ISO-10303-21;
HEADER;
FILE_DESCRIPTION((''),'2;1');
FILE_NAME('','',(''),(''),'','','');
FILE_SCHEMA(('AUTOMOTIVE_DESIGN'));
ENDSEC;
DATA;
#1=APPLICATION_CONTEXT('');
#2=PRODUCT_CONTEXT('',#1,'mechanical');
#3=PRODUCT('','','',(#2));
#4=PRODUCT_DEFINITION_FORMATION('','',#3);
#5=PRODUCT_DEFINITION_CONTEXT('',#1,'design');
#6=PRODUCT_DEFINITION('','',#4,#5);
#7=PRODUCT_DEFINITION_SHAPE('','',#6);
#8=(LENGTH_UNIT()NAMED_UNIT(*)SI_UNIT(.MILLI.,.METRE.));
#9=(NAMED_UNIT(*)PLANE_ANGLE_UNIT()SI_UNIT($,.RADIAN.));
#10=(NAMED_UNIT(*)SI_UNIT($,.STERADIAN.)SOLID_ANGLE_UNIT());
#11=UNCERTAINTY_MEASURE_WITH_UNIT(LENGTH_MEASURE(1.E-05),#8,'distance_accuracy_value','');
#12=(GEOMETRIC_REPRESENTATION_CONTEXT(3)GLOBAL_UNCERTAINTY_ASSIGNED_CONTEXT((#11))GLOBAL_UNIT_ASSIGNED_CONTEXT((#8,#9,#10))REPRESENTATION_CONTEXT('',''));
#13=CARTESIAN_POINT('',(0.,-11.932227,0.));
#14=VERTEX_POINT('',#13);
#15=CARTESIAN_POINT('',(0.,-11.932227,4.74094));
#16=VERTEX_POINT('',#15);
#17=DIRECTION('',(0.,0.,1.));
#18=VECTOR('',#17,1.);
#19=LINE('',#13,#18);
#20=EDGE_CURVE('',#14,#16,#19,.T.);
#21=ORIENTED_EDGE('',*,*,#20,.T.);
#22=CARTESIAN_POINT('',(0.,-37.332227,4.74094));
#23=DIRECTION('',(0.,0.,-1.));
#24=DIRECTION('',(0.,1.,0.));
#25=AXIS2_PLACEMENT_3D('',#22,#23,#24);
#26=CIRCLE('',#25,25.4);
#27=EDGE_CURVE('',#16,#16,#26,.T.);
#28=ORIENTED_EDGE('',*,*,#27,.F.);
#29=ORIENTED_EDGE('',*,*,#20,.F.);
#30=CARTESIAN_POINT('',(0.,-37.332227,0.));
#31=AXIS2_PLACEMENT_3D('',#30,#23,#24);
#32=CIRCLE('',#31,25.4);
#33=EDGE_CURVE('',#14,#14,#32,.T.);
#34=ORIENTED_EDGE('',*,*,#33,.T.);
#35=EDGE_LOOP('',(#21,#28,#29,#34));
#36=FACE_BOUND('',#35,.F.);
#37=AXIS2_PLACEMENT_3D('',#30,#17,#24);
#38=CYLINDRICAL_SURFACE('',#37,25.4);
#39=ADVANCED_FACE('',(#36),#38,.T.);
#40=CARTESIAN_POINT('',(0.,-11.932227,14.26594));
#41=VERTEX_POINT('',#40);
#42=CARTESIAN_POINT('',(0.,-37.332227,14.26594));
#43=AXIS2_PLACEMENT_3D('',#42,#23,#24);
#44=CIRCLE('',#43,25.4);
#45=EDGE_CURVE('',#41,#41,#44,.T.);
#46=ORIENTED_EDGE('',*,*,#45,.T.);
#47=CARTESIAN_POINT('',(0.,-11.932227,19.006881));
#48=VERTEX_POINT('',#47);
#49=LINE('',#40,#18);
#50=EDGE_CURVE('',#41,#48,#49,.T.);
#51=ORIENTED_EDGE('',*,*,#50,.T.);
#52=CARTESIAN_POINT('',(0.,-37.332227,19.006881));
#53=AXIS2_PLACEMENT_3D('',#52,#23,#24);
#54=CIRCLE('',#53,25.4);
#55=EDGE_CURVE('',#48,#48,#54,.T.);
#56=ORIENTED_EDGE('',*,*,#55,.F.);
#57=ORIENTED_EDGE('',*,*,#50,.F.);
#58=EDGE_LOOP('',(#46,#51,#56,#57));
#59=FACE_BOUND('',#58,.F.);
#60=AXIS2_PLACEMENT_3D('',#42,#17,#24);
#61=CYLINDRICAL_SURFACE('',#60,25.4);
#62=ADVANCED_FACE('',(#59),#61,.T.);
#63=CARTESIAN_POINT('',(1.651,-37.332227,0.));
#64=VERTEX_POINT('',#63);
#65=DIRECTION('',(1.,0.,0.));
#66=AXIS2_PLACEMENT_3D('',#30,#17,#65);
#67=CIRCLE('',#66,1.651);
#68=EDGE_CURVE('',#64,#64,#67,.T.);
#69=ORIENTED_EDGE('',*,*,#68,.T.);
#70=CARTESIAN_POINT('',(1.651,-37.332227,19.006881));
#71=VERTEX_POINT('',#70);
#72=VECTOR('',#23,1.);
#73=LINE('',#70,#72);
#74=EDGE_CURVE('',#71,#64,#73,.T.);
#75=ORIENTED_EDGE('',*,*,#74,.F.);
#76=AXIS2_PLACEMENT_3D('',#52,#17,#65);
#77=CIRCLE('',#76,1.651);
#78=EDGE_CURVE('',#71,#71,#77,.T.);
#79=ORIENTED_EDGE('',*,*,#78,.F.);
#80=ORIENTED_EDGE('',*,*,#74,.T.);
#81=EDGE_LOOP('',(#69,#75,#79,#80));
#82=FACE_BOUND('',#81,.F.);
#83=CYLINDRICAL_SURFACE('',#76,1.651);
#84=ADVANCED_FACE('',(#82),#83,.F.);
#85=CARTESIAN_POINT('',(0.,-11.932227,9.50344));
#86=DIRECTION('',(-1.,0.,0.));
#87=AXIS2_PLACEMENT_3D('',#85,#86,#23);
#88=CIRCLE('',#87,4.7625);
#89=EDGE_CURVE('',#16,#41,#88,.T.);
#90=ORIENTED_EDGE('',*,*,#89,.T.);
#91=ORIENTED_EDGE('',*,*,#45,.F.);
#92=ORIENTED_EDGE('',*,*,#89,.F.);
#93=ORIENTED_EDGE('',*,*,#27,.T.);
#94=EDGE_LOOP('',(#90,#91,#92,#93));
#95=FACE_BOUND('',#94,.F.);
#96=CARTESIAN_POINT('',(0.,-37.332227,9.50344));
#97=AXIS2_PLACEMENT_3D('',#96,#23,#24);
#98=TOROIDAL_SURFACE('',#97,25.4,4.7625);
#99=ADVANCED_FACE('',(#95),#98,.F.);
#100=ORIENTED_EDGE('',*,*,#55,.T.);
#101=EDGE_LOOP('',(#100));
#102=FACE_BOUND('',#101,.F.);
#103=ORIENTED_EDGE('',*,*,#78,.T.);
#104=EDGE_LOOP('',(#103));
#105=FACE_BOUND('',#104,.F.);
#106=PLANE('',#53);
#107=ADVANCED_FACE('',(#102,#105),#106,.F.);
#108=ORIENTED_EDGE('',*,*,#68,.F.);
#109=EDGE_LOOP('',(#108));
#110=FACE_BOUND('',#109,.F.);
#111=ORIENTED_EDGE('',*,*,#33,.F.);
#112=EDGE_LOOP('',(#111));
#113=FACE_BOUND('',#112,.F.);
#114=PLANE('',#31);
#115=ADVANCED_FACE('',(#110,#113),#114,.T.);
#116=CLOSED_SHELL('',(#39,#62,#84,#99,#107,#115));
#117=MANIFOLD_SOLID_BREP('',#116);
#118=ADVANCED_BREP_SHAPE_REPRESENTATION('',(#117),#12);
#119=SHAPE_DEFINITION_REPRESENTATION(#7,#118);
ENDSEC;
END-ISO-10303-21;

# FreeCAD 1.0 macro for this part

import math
import FreeCAD as App
import Part
import Sketcher
from FreeCAD import Vector
Q = App.Units.Quantity

doc = App.newDocument("Part")
body = doc.addObject("PartDesign::Body", "Body")

sketch1 = body.newObject("Sketcher::SketchObject", "Sketch")
sketch1.AttachmentSupport = (doc.getObject("YZ_Plane"), [""])
sketch1.MapMode = "FlatFace"
sketch1.addGeometry([
    Part.LineSegment(Vector(-11.932227, 19.006881, 0), Vector(-37.332227, 19.006881, 0)),
    Part.LineSegment(Vector(-37.332227, 19.006881, 0), Vector(-37.332227, 0, 0)),
    Part.LineSegment(Vector(-37.332227, 0, 0), Vector(-11.932227, 0, 0)),
    Part.LineSegment(Vector(-11.932227, 0, 0), Vector(-11.932227, 4.74094, 0)),
    Part.ArcOfCircle(Part.Circle(Vector(-11.932227, 9.50344, 0), Vector(0, 0, 1), 4.7625), math.radians(90), math.radians(270)),
    Part.LineSegment(Vector(-11.932227, 14.26594, 0), Vector(-11.932227, 19.006881, 0)),
], False)
sketch1.addGeometry(Part.LineSegment(Vector(-37.332227, 19.006881, 0), Vector(-37.332227, 0, 0)), True)
sketch1.addConstraint([
    Sketcher.Constraint("Coincident", 0, 2, 1, 1),
    Sketcher.Constraint("Coincident", 1, 2, 2, 1),
    Sketcher.Constraint("Coincident", 2, 2, 3, 1),
    Sketcher.Constraint("Coincident", 3, 2, 4, 2),
    Sketcher.Constraint("Coincident", 4, 1, 5, 1),
    Sketcher.Constraint("Coincident", 5, 2, 0, 1),
    Sketcher.Constraint("Horizontal", 0),
    Sketcher.Constraint("Vertical", 1),
    Sketcher.Constraint("Horizontal", 2),
    Sketcher.Constraint("Vertical", 3),
    Sketcher.Constraint("Vertical", 5),
    Sketcher.Constraint("Vertical", 6),
    Sketcher.Constraint("Coincident", 6, 1, 0, 2),
    Sketcher.Constraint("PointOnObject", 1, 2, -1),
    Sketcher.Constraint("PointOnObject", 6, 2, -1),
    Sketcher.Constraint("Vertical", 4, 3, 2, 2),
    Sketcher.Constraint("Vertical", 3, 2, 4, 1),
    Sketcher.Constraint("Equal", 3, 5),
    Sketcher.Constraint("DistanceX", 0, 2, 0, 1, Q("1 in")),
    Sketcher.Constraint("Radius", 4, Q("0.1875 in")),
    Sketcher.Constraint("DistanceY", 1, 2, 1, 1, 19.006881),
    Sketcher.Constraint("DistanceX", 4, 3, -1, 1, 11.932227),
])
revolution = body.newObject("PartDesign::Revolution", "Revolution")
revolution.Profile = sketch1
revolution.ReferenceAxis = (sketch1, ["Axis0"])
revolution.Angle = 360

sketch2 = body.newObject("Sketcher::SketchObject", "Sketch001")
sketch2.AttachmentSupport = (doc.getObject("XY_Plane"), [""])
sketch2.MapMode = "FlatFace"
sketch2.AttachmentOffset = App.Placement(Vector(0, 0, 19.006881), App.Rotation())
sketch2.addGeometry(Part.Circle(Vector(0, -37.332227, 0), Vector(0, 0, 1), 1.651), False)
sketch2.addConstraint([
    Sketcher.Constraint("PointOnObject", 0, 3, -2),
    Sketcher.Constraint("Diameter", 0, Q("0.13 in")),
    Sketcher.Constraint("DistanceY", 0, 3, -1, 1, 37.332227),
])
pocket1 = body.newObject("PartDesign::Pocket", "Pocket")
pocket1.Profile = sketch2
pocket1.Length = Q("1 in")

doc.recompute()
